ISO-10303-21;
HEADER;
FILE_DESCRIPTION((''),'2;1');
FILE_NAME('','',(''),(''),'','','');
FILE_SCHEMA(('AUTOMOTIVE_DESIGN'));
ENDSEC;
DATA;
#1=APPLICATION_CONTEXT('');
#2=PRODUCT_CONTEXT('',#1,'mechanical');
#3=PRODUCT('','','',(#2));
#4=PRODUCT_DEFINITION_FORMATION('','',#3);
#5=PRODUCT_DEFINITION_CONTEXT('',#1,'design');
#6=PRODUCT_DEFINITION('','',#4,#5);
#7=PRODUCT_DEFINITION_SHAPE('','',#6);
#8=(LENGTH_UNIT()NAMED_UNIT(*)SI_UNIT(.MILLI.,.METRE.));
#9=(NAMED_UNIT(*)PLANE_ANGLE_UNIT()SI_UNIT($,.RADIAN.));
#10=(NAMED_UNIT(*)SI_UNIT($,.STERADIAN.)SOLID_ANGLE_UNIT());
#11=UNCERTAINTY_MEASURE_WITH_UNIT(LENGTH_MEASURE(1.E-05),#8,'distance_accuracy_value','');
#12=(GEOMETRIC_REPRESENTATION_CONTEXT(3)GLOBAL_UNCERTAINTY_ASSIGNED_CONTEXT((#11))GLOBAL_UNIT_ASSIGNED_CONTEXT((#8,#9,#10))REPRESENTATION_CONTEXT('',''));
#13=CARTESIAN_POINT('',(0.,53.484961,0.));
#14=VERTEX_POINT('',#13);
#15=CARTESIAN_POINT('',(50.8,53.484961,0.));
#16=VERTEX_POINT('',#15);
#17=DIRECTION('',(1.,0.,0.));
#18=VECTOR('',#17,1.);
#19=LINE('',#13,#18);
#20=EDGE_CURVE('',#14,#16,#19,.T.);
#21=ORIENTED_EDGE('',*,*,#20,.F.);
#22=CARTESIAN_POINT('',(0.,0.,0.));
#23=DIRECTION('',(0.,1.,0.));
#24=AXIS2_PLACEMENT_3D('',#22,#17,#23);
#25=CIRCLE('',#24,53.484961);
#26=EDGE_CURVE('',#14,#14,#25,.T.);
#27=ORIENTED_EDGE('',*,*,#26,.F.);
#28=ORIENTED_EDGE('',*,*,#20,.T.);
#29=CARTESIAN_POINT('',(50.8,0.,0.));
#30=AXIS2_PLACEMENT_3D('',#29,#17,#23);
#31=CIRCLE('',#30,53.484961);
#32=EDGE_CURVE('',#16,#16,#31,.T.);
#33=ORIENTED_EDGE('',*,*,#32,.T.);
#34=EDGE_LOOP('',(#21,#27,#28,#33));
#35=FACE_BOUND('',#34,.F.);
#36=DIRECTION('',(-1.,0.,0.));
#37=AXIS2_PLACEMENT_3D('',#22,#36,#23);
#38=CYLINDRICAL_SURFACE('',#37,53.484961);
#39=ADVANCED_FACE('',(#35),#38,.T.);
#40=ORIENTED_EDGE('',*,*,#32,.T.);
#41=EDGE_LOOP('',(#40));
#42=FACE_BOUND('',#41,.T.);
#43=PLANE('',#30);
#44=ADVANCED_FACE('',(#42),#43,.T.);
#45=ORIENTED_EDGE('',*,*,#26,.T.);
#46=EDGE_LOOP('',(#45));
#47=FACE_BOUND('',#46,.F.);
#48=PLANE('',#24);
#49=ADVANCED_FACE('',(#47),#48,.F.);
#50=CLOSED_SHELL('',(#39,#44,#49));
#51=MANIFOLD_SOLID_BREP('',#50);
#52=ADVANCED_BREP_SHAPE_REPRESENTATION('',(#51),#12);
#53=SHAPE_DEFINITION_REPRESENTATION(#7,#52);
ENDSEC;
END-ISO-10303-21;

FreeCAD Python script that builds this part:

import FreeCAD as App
import Part
import Sketcher

V = App.Vector
Q = App.Units.Quantity

doc = App.newDocument("Part")
body = doc.addObject("PartDesign::Body", "Body")

# Sketch on YZ plane
sketch1 = body.newObject("Sketcher::SketchObject", "Sketch")
sketch1.AttachmentSupport = (doc.getObject("YZ_Plane"), [""])
sketch1.MapMode = "FlatFace"
sketch1.addGeometry(Part.Circle(V(0, 0, 0), V(0, 0, 1), 53), False)
sketch1.addConstraint([
    Sketcher.Constraint("Coincident", 0, 3, -1, 1),
    Sketcher.Constraint("Diameter", 0, Q("106.969922 mm")),
])
pad1 = body.newObject("PartDesign::Pad", "Pad")
pad1.Profile = sketch1
pad1.Length = Q("2 in")

doc.recompute()
